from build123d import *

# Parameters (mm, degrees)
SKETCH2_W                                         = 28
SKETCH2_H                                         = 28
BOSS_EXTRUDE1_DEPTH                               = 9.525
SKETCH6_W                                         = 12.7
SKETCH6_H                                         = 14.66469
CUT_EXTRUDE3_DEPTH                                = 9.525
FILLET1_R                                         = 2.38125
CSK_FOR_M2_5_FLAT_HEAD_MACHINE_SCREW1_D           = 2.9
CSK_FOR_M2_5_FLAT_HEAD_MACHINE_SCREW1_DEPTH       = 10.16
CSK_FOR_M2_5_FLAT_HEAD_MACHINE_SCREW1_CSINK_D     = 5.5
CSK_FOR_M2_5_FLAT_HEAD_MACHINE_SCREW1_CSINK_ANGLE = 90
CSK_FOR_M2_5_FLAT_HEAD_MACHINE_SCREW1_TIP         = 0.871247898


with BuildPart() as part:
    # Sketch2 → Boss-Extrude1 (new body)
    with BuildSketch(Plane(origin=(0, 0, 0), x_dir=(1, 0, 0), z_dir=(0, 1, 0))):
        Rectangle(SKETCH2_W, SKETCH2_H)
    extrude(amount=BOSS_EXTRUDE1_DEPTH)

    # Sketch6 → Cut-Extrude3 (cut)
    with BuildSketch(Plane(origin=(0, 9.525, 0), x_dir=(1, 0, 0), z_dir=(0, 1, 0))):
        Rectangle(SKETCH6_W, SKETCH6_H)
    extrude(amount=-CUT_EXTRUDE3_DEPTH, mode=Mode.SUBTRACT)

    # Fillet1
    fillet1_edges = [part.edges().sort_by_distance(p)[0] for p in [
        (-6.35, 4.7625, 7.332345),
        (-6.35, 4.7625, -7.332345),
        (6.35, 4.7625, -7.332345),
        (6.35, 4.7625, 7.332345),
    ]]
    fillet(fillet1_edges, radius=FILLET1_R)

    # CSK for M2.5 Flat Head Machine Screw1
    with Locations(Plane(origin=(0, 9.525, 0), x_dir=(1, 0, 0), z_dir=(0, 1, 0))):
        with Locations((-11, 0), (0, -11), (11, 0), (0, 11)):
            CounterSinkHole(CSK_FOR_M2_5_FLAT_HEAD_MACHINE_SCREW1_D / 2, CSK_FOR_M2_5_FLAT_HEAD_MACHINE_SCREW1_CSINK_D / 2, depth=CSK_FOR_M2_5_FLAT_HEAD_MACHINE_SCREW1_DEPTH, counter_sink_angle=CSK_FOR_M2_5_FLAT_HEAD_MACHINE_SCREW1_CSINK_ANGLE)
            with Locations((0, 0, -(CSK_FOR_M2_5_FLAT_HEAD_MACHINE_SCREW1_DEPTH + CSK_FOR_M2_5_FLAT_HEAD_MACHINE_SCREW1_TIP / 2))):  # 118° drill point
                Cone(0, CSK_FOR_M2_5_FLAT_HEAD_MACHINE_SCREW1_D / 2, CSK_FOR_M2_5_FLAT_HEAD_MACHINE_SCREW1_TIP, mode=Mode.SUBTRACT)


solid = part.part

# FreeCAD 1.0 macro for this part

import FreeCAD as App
import Part
import Sketcher
from FreeCAD import Vector
Q = App.Units.Quantity


def edges_at(feature, points):
    """Names of the edges that pass closest to the given points."""
    edges = feature.Shape.Edges
    near = lambda p: min(range(len(edges)), key=lambda i: edges[i].distToShape(Part.Vertex(*p))[0])
    return sorted({f"Edge{near(p) + 1}" for p in points})

doc = App.newDocument("Part")
body = doc.addObject("PartDesign::Body", "Body")

# Sketch on XZ plane
sketch1 = doc.addObject("Sketcher::SketchObject", "Sketch")
body.addObject(sketch1)
sketch1.AttachmentSupport = (doc.XZ_Plane, [""])
sketch1.MapMode = "FlatFace"
sketch1.addGeometry([
    Part.LineSegment(Vector(-14, -14, 0), Vector(-14, 14, 0)),
    Part.LineSegment(Vector(-14, 14, 0), Vector(14, 14, 0)),
    Part.LineSegment(Vector(14, 14, 0), Vector(14, -14, 0)),
    Part.LineSegment(Vector(14, -14, 0), Vector(-14, -14, 0)),
], False)
sketch1.addConstraint([
    Sketcher.Constraint("Coincident", 0, 2, 1, 1),
    Sketcher.Constraint("Coincident", 1, 2, 2, 1),
    Sketcher.Constraint("Coincident", 2, 2, 3, 1),
    Sketcher.Constraint("Coincident", 3, 2, 0, 1),
    Sketcher.Constraint("Vertical", 0),
    Sketcher.Constraint("Horizontal", 1),
    Sketcher.Constraint("Vertical", 2),
    Sketcher.Constraint("Horizontal", 3),
    Sketcher.Constraint("Symmetric", 0, 2, 2, 2, -1, 1),
    Sketcher.Constraint("Equal", 3, 0),
    Sketcher.Constraint("DistanceX", 1, 1, 1, 2, Q("28 mm")),
])
pad1 = doc.addObject("PartDesign::Pad", "Pad")
body.addObject(pad1)
pad1.Profile = sketch1
pad1.Length = Q("0.375 in")
pad1.Reversed = True

# Sketch on XZ plane
sketch2 = doc.addObject("Sketcher::SketchObject", "Sketch001")
body.addObject(sketch2)
sketch2.AttachmentSupport = (doc.XZ_Plane, [""])
sketch2.MapMode = "FlatFace"
sketch2.AttachmentOffset = App.Placement(Vector(0, 0, -0.375 * 25.4), App.Rotation())
sketch2.addGeometry([
    Part.LineSegment(Vector(-6, -7, 0), Vector(-6, 7, 0)),
    Part.LineSegment(Vector(-6, 7, 0), Vector(6, 7, 0)),
    Part.LineSegment(Vector(6, 7, 0), Vector(6, -7, 0)),
    Part.LineSegment(Vector(6, -7, 0), Vector(-6, -7, 0)),
], False)
sketch2.addConstraint([
    Sketcher.Constraint("Coincident", 0, 2, 1, 1),
    Sketcher.Constraint("Coincident", 1, 2, 2, 1),
    Sketcher.Constraint("Coincident", 2, 2, 3, 1),
    Sketcher.Constraint("Coincident", 3, 2, 0, 1),
    Sketcher.Constraint("Vertical", 0),
    Sketcher.Constraint("Horizontal", 1),
    Sketcher.Constraint("Vertical", 2),
    Sketcher.Constraint("Horizontal", 3),
    Sketcher.Constraint("Symmetric", 0, 2, 2, 2, -1, 1),
    Sketcher.Constraint("DistanceX", 1, 1, 1, 2, Q("0.5 in")),
    Sketcher.Constraint("DistanceY", 0, 1, 0, 2, Q("14.66469 mm")),
])
pocket1 = doc.addObject("PartDesign::Pocket", "Pocket")
body.addObject(pocket1)
pocket1.Profile = sketch2
pocket1.Length = Q("0.375 in")
pocket1.Reversed = True
doc.recompute()

fillet = doc.addObject("PartDesign::Fillet", "Fillet")
body.addObject(fillet)
fillet.Base = (pocket1, edges_at(pocket1, [
    (-6.35, 4.763, 7.332),
    (-6.35, 4.763, -7.332),
    (6.35, 4.763, -7.332),
    (6.35, 4.763, 7.332),
]))
fillet.Radius = Q("0.09375 in")

# Sketch on XZ plane
sketch3 = doc.addObject("Sketcher::SketchObject", "Sketch002")
body.addObject(sketch3)
sketch3.AttachmentSupport = (doc.XZ_Plane, [""])
sketch3.MapMode = "FlatFace"
sketch3.AttachmentOffset = App.Placement(Vector(0, 0, -0.375 * 25.4), App.Rotation())
sketch3.addGeometry([
    Part.Circle(Vector(-11, 0, 0), Vector(0, 0, 1), 1.4),
    Part.Circle(Vector(0, 11, 0), Vector(0, 0, 1), 1.4),
    Part.Circle(Vector(11, 0, 0), Vector(0, 0, 1), 1.4),
    Part.Circle(Vector(0, -11, 0), Vector(0, 0, 1), 1.4),
], False)
sketch3.addConstraint([
    Sketcher.Constraint("Equal", 0, 1),
    Sketcher.Constraint("Equal", 1, 2),
    Sketcher.Constraint("Equal", 2, 3),
    Sketcher.Constraint("Symmetric", 0, 3, 2, 3, -1, 1),
    Sketcher.Constraint("Symmetric", 1, 3, 3, 3, -1, 1),
    Sketcher.Constraint("PointOnObject", 0, 3, -1),
    Sketcher.Constraint("PointOnObject", 1, 3, -2),
    Sketcher.Constraint("Diameter", 0, Q("2.9 mm")),
    Sketcher.Constraint("DistanceX", 0, 3, -1, 1, Q("11 mm")),
    Sketcher.Constraint("DistanceY", -1, 1, 1, 3, Q("11 mm")),
])
doc.recompute()
hole = doc.addObject("PartDesign::Hole", "Hole")
body.addObject(hole)
hole.Profile = sketch3
hole.ThreadType = "None"
hole.Diameter = 2.9
hole.DepthType = "Dimension"
hole.Depth = Q("0.4 in")
hole.DrillPoint = "Angled"
hole.DrillPointAngle = 118
hole.HoleCutType = "Countersink"
hole.HoleCutDiameter = 5.5
hole.HoleCutCountersinkAngle = 90
hole.Reversed = True

doc.recompute()
